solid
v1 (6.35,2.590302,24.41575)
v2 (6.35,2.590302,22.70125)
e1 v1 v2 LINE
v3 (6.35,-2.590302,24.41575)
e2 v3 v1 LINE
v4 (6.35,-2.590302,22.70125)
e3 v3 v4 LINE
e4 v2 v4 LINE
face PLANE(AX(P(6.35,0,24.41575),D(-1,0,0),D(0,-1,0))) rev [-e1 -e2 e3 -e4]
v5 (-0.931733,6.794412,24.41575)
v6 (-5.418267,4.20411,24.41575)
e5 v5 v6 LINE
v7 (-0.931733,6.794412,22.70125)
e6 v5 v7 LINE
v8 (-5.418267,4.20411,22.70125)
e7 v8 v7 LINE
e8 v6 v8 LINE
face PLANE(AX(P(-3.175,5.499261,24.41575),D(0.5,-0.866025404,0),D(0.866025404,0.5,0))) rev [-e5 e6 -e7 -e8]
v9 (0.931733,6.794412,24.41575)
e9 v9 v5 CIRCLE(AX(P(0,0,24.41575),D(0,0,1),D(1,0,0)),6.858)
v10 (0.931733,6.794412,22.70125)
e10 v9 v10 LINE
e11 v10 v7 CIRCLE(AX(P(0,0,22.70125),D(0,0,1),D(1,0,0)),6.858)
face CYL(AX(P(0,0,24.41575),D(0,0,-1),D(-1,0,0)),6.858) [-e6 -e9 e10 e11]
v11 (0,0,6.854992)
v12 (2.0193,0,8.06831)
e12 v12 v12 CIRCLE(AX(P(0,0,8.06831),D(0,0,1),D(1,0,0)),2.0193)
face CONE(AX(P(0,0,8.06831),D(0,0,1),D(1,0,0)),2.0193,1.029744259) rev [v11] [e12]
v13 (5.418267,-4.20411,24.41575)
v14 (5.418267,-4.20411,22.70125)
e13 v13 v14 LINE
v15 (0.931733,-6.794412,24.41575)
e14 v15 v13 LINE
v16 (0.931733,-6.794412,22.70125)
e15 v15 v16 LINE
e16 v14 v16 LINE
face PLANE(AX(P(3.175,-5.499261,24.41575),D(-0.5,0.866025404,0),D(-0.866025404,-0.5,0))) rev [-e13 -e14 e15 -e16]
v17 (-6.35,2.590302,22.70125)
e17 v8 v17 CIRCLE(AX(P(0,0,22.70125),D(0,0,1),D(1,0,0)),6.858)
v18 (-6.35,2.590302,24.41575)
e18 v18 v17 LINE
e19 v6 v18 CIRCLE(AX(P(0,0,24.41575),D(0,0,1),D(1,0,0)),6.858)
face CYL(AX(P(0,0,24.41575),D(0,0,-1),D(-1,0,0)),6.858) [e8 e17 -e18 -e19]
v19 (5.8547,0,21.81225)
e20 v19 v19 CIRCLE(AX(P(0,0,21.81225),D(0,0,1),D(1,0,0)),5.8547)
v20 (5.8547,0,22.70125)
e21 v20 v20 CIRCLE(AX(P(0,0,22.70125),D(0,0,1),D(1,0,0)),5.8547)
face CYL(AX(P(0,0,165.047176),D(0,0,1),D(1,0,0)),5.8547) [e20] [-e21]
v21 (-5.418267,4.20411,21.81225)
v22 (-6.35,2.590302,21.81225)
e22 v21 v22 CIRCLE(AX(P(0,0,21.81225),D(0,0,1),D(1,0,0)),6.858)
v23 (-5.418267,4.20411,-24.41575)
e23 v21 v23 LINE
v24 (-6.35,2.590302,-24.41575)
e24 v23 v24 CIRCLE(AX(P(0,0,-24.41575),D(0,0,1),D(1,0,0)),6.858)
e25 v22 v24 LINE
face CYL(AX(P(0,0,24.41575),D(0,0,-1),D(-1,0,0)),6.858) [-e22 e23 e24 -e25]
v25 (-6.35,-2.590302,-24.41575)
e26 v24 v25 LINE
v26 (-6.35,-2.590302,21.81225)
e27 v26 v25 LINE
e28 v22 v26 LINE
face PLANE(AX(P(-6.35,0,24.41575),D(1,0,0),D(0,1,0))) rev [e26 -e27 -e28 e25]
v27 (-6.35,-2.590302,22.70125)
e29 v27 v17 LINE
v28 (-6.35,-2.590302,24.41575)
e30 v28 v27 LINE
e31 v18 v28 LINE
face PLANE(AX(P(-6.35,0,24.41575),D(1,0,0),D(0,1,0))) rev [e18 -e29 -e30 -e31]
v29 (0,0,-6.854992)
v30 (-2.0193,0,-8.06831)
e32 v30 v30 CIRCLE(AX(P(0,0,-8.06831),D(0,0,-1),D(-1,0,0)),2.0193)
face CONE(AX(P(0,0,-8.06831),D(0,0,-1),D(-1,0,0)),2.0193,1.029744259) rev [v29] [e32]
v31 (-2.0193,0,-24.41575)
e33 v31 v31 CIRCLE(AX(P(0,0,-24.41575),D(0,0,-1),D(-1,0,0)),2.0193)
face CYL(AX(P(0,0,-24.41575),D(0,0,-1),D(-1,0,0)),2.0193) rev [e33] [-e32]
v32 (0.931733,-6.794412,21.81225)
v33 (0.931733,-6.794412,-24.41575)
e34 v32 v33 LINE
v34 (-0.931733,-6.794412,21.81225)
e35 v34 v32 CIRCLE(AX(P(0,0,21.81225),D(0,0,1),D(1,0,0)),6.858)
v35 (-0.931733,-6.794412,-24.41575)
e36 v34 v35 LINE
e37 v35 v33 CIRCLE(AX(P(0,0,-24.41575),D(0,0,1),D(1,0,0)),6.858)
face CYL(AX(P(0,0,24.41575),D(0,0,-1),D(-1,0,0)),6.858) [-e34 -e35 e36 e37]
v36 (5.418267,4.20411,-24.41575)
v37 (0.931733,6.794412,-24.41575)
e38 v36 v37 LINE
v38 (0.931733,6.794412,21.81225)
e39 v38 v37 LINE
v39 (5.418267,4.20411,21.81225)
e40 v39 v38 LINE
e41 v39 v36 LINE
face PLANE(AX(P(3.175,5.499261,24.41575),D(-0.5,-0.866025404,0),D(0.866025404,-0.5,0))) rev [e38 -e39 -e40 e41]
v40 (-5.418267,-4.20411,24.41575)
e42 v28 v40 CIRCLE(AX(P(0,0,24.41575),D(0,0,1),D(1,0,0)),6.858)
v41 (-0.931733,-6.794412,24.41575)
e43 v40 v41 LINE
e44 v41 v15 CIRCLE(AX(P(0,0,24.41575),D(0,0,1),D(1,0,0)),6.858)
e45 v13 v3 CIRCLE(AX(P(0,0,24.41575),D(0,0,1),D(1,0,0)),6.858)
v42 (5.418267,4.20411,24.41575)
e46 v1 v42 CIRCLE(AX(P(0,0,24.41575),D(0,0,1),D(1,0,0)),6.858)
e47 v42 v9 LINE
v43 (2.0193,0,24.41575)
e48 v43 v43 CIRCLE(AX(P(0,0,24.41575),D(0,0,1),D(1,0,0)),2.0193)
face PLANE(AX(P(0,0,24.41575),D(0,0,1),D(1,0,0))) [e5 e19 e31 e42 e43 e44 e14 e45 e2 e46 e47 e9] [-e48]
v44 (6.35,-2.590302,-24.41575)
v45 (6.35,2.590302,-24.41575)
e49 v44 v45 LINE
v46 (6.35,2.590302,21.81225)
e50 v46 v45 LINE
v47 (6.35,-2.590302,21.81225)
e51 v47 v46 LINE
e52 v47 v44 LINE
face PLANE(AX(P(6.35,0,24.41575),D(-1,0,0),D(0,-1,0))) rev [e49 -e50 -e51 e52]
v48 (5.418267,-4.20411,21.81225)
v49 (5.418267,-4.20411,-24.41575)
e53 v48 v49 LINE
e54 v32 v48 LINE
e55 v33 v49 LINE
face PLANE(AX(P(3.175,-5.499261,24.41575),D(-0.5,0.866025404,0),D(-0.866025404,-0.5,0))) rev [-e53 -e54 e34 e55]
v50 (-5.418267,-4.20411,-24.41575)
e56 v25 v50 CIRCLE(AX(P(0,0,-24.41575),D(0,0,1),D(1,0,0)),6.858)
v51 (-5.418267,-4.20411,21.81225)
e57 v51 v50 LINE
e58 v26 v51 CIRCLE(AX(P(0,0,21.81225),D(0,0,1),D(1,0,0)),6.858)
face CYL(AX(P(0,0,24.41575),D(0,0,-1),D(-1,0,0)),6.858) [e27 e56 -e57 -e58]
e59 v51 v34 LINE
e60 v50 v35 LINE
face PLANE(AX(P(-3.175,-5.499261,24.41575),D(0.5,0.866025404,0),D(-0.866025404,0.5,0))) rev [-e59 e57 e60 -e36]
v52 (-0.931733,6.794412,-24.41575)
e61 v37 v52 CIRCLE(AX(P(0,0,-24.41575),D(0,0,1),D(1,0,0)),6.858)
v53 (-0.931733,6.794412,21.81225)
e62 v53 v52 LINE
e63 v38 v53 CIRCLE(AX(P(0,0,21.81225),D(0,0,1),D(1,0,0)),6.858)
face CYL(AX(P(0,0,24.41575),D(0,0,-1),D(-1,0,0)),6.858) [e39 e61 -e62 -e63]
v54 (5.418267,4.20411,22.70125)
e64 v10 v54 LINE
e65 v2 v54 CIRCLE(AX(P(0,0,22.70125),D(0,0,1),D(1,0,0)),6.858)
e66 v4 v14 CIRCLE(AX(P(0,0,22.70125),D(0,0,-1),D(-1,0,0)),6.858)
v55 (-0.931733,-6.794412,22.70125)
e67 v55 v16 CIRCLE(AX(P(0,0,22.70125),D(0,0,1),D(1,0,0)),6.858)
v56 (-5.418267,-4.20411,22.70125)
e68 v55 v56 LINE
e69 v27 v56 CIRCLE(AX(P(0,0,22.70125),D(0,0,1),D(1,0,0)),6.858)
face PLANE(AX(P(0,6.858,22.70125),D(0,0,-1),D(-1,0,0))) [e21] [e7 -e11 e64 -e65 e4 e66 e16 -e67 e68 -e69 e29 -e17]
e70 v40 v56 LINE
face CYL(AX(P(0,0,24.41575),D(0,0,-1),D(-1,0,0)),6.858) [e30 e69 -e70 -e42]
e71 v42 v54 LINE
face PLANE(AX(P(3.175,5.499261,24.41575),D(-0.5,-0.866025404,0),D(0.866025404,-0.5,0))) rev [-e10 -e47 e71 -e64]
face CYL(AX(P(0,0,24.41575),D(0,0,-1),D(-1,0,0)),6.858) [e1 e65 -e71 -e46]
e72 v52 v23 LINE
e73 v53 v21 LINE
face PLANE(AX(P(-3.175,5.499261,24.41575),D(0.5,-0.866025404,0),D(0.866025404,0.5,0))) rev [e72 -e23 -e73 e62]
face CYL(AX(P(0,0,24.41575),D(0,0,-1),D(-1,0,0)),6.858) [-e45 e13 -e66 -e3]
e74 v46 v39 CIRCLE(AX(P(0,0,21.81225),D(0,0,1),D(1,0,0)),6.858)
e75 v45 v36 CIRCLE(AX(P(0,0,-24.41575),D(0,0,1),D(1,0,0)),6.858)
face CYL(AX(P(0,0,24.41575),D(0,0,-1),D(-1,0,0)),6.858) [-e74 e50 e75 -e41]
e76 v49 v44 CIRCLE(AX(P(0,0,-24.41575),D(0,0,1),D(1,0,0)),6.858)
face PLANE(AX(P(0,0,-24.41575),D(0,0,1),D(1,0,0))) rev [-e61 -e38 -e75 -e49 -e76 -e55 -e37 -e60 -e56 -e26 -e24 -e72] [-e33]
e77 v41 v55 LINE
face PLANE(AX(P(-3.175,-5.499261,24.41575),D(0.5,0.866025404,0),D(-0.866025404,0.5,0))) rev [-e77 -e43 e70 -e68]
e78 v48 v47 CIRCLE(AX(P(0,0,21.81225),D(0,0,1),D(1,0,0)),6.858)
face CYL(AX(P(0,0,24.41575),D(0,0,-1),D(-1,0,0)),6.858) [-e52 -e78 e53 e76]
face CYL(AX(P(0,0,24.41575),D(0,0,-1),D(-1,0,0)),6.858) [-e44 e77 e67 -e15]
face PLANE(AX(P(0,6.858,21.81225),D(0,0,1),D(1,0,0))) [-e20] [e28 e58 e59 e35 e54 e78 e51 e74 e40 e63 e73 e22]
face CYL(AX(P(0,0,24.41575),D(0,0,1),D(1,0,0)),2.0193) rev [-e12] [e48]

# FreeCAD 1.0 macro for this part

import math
import FreeCAD as App
import Part
import Sketcher
from FreeCAD import Vector
Q = App.Units.Quantity


def add_polygon(sketch, points):
    """Adds a closed chain of lines whose ends are joined by coincident constraints."""
    first, n = sketch.GeometryCount, len(points)
    for a, b in zip(points, points[1:] + points[:1]):
        sketch.addGeometry(Part.LineSegment(App.Vector(*a, 0), App.Vector(*b, 0)), False)
    for i in range(n):
        sketch.addConstraint(Sketcher.Constraint("Coincident", first + i, 2, first + (i + 1) % n, 1))

doc = App.newDocument("Part")
body = doc.addObject("PartDesign::Body", "Body")

sketch1 = body.newObject("Sketcher::SketchObject", "Sketch")
sketch1.AttachmentSupport = (doc.getObject("XY_Plane"), [""])
sketch1.MapMode = "FlatFace"
sketch1.addGeometry([
    Part.ArcOfCircle(Part.Circle(Vector(0, 0, 0), Vector(0, 0, 1), 6.9), math.radians(82.19), math.radians(97.81)),
    Part.LineSegment(Vector(-0.9, 6.8, 0), Vector(-5.4, 4.2, 0)),
    Part.ArcOfCircle(Part.Circle(Vector(0, 0, 0), Vector(0, 0, 1), 6.9), math.radians(142.19), math.radians(157.81)),
    Part.LineSegment(Vector(-6.3, 2.6, 0), Vector(-6.3, -2.6, 0)),
    Part.ArcOfCircle(Part.Circle(Vector(0, 0, 0), Vector(0, 0, 1), 6.9), math.radians(-157.81), math.radians(-142.19)),
    Part.LineSegment(Vector(-5.4, -4.2, 0), Vector(-0.9, -6.8, 0)),
    Part.ArcOfCircle(Part.Circle(Vector(0, 0, 0), Vector(0, 0, 1), 6.9), math.radians(-97.81), math.radians(-82.19)),
    Part.LineSegment(Vector(0.9, -6.8, 0), Vector(5.4, -4.2, 0)),
    Part.ArcOfCircle(Part.Circle(Vector(0, 0, 0), Vector(0, 0, 1), 6.9), math.radians(-37.81), math.radians(-22.19)),
    Part.LineSegment(Vector(6.3, -2.6, 0), Vector(6.3, 2.6, 0)),
    Part.ArcOfCircle(Part.Circle(Vector(0, 0, 0), Vector(0, 0, 1), 6.9), math.radians(22.19), math.radians(37.81)),
    Part.LineSegment(Vector(5.4, 4.2, 0), Vector(0.9, 6.8, 0)),
], False)
sketch1.addConstraint([
    Sketcher.Constraint("Coincident", 0, 2, 1, 1),
    Sketcher.Constraint("Coincident", 1, 2, 2, 1),
    Sketcher.Constraint("Coincident", 2, 2, 3, 1),
    Sketcher.Constraint("Coincident", 3, 2, 4, 1),
    Sketcher.Constraint("Coincident", 4, 2, 5, 1),
    Sketcher.Constraint("Coincident", 5, 2, 6, 1),
    Sketcher.Constraint("Coincident", 6, 2, 7, 1),
    Sketcher.Constraint("Coincident", 7, 2, 8, 1),
    Sketcher.Constraint("Coincident", 8, 2, 9, 1),
    Sketcher.Constraint("Coincident", 9, 2, 10, 1),
    Sketcher.Constraint("Coincident", 10, 2, 11, 1),
    Sketcher.Constraint("Coincident", 11, 2, 0, 1),
    Sketcher.Constraint("Vertical", 3),
    Sketcher.Constraint("Vertical", 9),
    Sketcher.Constraint("Coincident", 0, 3, -1, 1),
    Sketcher.Constraint("Coincident", 2, 3, -1, 1),
    Sketcher.Constraint("Coincident", 4, 3, -1, 1),
    Sketcher.Constraint("Coincident", 6, 3, -1, 1),
    Sketcher.Constraint("Coincident", 8, 3, -1, 1),
    Sketcher.Constraint("Coincident", 10, 3, -1, 1),
    Sketcher.Constraint("Equal", 0, 2),
    Sketcher.Constraint("Equal", 2, 4),
    Sketcher.Constraint("Equal", 4, 6),
    Sketcher.Constraint("Equal", 6, 8),
    Sketcher.Constraint("Equal", 8, 10),
    Sketcher.Constraint("Parallel", 1, 7),
    Sketcher.Constraint("Parallel", 5, 11),
    Sketcher.Constraint("Horizontal", 5, 2, 6, 2),
    Sketcher.Constraint("Horizontal", 4, 2, 7, 2),
    Sketcher.Constraint("Horizontal", 3, 2, 8, 2),
    Sketcher.Constraint("Horizontal", 1, 2, 10, 2),
    Sketcher.Constraint("Vertical", 1, 2, 4, 2),
    Sketcher.Constraint("Radius", 0, Q("0.27 in")),
    Sketcher.Constraint("Angle", 1, Q("-150 deg")),
    Sketcher.Constraint("DistanceX", 2, 2, -1, 1, Q("0.25 in")),
    Sketcher.Constraint("DistanceX", 4, 2, 6, 2, Q("0.25 in")),
])
pad1 = body.newObject("PartDesign::Pad", "Pad")
pad1.Profile = sketch1
pad1.Length = Q("1.9225 in")
pad1.Midplane = True

sketch2 = body.newObject("Sketcher::SketchObject", "Sketch001")
sketch2.AttachmentSupport = (doc.getObject("XY_Plane"), [""])
sketch2.MapMode = "FlatFace"
sketch2.AttachmentOffset = App.Placement(Vector(0, 0, 24.41575), App.Rotation())
sketch2.addGeometry(Part.Circle(Vector(0, 0, 0), Vector(0, 0, 1), 2), False)
sketch2.addConstraint([
    Sketcher.Constraint("Coincident", 0, 3, -1, 1),
    Sketcher.Constraint("Diameter", 0, Q("0.159 in")),
])
doc.recompute()
hole = body.newObject("PartDesign::Hole", "Hole")
hole.Profile = sketch2
hole.ThreadType = "None"
hole.Diameter = Q("0.159 in")
hole.DepthType = "Dimension"
hole.Depth = Q("0.6436 in")
hole.DrillPoint = "Angled"
hole.DrillPointAngle = 118

sketch3 = body.newObject("Sketcher::SketchObject", "Sketch002")
sketch3.AttachmentSupport = (doc.getObject("XY_Plane"), [""])
sketch3.MapMode = "FlatFace"
sketch3.AttachmentOffset = App.Placement(Vector(0, 0, -24.41575), App.Rotation())
sketch3.addGeometry(Part.Circle(Vector(0, 0, 0), Vector(0, 0, 1), 2), False)
sketch3.addConstraint([
    Sketcher.Constraint("Coincident", 0, 3, -1, 1),
    Sketcher.Constraint("Diameter", 0, Q("0.159 in")),
])
doc.recompute()
hole2 = body.newObject("PartDesign::Hole", "Hole001")
hole2.Profile = sketch3
hole2.ThreadType = "None"
hole2.Diameter = Q("0.159 in")
hole2.DepthType = "Dimension"
hole2.Depth = Q("0.6436 in")
hole2.DrillPoint = "Angled"
hole2.DrillPointAngle = 118
hole2.Reversed = True

sketch4 = body.newObject("Sketcher::SketchObject", "Sketch003")
sketch4.AttachmentSupport = (doc.getObject("YZ_Plane"), [""])
sketch4.MapMode = "FlatFace"
add_polygon(sketch4, [(6.9, 22.7), (5.9, 22.7), (5.9, 21.8), (6.9, 21.8)])
sketch4.addConstraint([
    Sketcher.Constraint("Horizontal", 0),
    Sketcher.Constraint("Vertical", 1),
    Sketcher.Constraint("Horizontal", 2),
    Sketcher.Constraint("Vertical", 3),
    Sketcher.Constraint("DistanceY", 1, 2, 1, 1, Q("0.035 in")),
    Sketcher.Constraint("DistanceX", -1, 1, 2, 2, Q("0.27 in")),
    Sketcher.Constraint("DistanceX", 0, 2, 0, 1, Q("0.0395 in")),
    Sketcher.Constraint("DistanceY", -1, 1, 0, 2, Q("22.70125 mm")),
])
groove = body.newObject("PartDesign::Groove", "Groove")
groove.Profile = sketch4
groove.ReferenceAxis = (sketch4, ["V_Axis"])
groove.Angle = 360

doc.recompute()
